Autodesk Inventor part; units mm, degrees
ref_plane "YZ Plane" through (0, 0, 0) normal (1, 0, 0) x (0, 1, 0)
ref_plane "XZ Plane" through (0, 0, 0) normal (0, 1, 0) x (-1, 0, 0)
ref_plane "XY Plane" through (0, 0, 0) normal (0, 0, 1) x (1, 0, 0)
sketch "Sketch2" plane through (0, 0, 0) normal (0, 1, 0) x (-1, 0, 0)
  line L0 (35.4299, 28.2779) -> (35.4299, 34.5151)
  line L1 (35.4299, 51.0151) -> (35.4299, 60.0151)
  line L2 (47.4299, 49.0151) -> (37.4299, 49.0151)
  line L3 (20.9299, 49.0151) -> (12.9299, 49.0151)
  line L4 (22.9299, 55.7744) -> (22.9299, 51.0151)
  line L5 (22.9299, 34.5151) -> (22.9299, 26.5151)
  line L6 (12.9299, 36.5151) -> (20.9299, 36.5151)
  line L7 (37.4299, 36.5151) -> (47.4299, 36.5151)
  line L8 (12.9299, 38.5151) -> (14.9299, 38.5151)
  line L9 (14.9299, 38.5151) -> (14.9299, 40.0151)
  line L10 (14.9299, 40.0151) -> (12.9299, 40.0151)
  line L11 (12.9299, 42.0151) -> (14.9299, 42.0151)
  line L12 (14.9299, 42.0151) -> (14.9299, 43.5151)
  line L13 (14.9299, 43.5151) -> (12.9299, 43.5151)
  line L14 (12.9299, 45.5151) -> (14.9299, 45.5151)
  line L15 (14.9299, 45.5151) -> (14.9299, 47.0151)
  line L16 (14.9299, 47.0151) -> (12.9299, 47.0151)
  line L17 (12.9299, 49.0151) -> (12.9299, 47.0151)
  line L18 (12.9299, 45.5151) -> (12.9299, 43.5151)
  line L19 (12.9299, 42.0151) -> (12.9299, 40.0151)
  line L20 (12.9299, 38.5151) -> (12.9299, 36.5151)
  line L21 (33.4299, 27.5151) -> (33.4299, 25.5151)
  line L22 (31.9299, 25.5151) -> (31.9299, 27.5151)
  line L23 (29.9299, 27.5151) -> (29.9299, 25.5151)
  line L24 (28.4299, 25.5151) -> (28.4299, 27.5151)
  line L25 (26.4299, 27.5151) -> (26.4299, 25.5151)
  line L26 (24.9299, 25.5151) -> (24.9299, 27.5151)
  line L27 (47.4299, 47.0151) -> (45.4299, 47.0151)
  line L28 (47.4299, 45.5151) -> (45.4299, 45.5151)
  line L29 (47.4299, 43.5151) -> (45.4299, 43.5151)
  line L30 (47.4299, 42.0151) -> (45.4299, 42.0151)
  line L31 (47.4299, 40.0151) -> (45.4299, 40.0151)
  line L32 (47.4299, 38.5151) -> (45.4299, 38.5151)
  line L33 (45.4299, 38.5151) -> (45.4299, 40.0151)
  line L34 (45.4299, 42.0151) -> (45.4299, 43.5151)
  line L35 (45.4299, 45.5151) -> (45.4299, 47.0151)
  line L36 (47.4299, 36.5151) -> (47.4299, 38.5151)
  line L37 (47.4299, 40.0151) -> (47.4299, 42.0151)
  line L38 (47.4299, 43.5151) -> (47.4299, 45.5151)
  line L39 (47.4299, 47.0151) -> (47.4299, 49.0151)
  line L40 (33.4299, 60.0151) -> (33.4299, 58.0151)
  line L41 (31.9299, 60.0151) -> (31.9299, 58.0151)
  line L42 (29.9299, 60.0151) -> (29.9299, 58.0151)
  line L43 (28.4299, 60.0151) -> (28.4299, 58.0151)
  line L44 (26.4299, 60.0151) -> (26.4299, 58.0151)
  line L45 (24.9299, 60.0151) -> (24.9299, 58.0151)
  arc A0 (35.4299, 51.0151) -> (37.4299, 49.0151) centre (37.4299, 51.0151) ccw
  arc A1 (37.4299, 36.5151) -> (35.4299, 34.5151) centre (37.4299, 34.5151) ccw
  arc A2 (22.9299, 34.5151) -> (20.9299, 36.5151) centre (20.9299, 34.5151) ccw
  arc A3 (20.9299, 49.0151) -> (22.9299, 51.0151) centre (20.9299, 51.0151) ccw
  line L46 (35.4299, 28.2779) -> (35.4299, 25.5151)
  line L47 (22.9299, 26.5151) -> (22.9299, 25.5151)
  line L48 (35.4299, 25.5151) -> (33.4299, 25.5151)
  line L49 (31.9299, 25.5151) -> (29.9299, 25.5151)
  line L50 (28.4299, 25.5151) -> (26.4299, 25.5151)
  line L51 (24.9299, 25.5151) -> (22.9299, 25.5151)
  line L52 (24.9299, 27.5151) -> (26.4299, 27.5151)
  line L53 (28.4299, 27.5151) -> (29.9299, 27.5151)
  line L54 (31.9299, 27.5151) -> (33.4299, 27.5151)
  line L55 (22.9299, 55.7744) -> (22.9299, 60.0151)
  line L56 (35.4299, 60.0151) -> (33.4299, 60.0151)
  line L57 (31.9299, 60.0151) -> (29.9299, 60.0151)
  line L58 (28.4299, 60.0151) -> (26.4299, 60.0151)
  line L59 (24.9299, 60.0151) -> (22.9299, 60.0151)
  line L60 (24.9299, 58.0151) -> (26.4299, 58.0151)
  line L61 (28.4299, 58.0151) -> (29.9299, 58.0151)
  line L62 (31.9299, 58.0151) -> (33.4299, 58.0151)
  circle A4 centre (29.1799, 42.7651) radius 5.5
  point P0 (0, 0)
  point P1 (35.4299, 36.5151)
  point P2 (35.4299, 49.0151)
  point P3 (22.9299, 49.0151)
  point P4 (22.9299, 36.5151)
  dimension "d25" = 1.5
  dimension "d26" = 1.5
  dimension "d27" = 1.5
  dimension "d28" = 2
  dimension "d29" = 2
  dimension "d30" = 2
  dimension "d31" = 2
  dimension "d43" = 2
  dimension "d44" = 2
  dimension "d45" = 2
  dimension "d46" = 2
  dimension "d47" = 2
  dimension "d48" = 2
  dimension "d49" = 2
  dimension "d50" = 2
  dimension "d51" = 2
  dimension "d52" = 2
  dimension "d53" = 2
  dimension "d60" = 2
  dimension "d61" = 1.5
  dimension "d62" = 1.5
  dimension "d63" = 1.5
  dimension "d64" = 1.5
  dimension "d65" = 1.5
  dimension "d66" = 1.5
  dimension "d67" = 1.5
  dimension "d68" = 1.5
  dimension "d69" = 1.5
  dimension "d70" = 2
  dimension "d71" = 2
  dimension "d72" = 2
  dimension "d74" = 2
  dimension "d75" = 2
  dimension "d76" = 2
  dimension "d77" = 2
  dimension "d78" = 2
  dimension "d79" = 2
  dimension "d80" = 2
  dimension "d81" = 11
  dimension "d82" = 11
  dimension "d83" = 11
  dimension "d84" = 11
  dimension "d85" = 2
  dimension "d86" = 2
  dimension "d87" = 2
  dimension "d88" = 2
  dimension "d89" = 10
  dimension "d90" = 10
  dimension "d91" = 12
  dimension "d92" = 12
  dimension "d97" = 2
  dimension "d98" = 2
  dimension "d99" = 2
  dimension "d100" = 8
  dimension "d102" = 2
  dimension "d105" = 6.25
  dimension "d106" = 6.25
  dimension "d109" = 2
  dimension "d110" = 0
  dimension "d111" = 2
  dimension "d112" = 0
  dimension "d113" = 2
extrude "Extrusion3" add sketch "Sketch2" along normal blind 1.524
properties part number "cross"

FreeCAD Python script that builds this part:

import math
import FreeCAD as App
import Part
import Sketcher
from FreeCAD import Vector

doc = App.newDocument("Part")
body = doc.addObject("PartDesign::Body", "Body")

# Sketch on XZ plane
sketch1 = body.newObject("Sketcher::SketchObject", "Sketch")
sketch1.AttachmentSupport = (doc.getObject("XZ_Plane"), [""])
sketch1.MapMode = "FlatFace"
sketch1.addGeometry(Part.LineSegment(Vector(-35.4299, 25.5151, 0), Vector(-35.4299, 34.5151, 0)), False)
sketch1.addGeometry(Part.ArcOfCircle(Part.Circle(Vector(-37.4299, 34.5151, 0), Vector(0, 0, 1), 2), math.radians(0), math.radians(90)), False)
sketch1.addGeometry(Part.LineSegment(Vector(-37.4299, 36.5151, 0), Vector(-47.4299, 36.5151, 0)), False)
sketch1.addGeometry(Part.LineSegment(Vector(-47.4299, 36.5151, 0), Vector(-47.4299, 38.5151, 0)), False)
sketch1.addGeometry(Part.LineSegment(Vector(-47.4299, 38.5151, 0), Vector(-45.4299, 38.5151, 0)), False)
sketch1.addGeometry(Part.LineSegment(Vector(-45.4299, 38.5151, 0), Vector(-45.4299, 40.0151, 0)), False)
sketch1.addGeometry(Part.LineSegment(Vector(-45.4299, 40.0151, 0), Vector(-47.4299, 40.0151, 0)), False)
sketch1.addGeometry(Part.LineSegment(Vector(-47.4299, 40.0151, 0), Vector(-47.4299, 42.0151, 0)), False)
sketch1.addGeometry(Part.LineSegment(Vector(-47.4299, 42.0151, 0), Vector(-45.4299, 42.0151, 0)), False)
sketch1.addGeometry(Part.LineSegment(Vector(-45.4299, 42.0151, 0), Vector(-45.4299, 43.5151, 0)), False)
sketch1.addGeometry(Part.LineSegment(Vector(-45.4299, 43.5151, 0), Vector(-47.4299, 43.5151, 0)), False)
sketch1.addGeometry(Part.LineSegment(Vector(-47.4299, 43.5151, 0), Vector(-47.4299, 45.5151, 0)), False)
sketch1.addGeometry(Part.LineSegment(Vector(-47.4299, 45.5151, 0), Vector(-45.4299, 45.5151, 0)), False)
sketch1.addGeometry(Part.LineSegment(Vector(-45.4299, 45.5151, 0), Vector(-45.4299, 47.0151, 0)), False)
sketch1.addGeometry(Part.LineSegment(Vector(-45.4299, 47.0151, 0), Vector(-47.4299, 47.0151, 0)), False)
sketch1.addGeometry(Part.LineSegment(Vector(-47.4299, 47.0151, 0), Vector(-47.4299, 49.0151, 0)), False)
sketch1.addGeometry(Part.LineSegment(Vector(-47.4299, 49.0151, 0), Vector(-37.4299, 49.0151, 0)), False)
sketch1.addGeometry(Part.ArcOfCircle(Part.Circle(Vector(-37.4299, 51.0151, 0), Vector(0, 0, 1), 2), math.radians(-90), math.radians(0)), False)
sketch1.addGeometry(Part.LineSegment(Vector(-35.4299, 51.0151, 0), Vector(-35.4299, 60.0151, 0)), False)
sketch1.addGeometry(Part.LineSegment(Vector(-35.4299, 60.0151, 0), Vector(-33.4299, 60.0151, 0)), False)
sketch1.addGeometry(Part.LineSegment(Vector(-33.4299, 60.0151, 0), Vector(-33.4299, 58.0151, 0)), False)
sketch1.addGeometry(Part.LineSegment(Vector(-33.4299, 58.0151, 0), Vector(-31.9299, 58.0151, 0)), False)
sketch1.addGeometry(Part.LineSegment(Vector(-31.9299, 58.0151, 0), Vector(-31.9299, 60.0151, 0)), False)
sketch1.addGeometry(Part.LineSegment(Vector(-31.9299, 60.0151, 0), Vector(-29.9299, 60.0151, 0)), False)
sketch1.addGeometry(Part.LineSegment(Vector(-29.9299, 60.0151, 0), Vector(-29.9299, 58.0151, 0)), False)
sketch1.addGeometry(Part.LineSegment(Vector(-29.9299, 58.0151, 0), Vector(-28.4299, 58.0151, 0)), False)
sketch1.addGeometry(Part.LineSegment(Vector(-28.4299, 58.0151, 0), Vector(-28.4299, 60.0151, 0)), False)
sketch1.addGeometry(Part.LineSegment(Vector(-28.4299, 60.0151, 0), Vector(-26.4299, 60.0151, 0)), False)
sketch1.addGeometry(Part.LineSegment(Vector(-26.4299, 60.0151, 0), Vector(-26.4299, 58.0151, 0)), False)
sketch1.addGeometry(Part.LineSegment(Vector(-26.4299, 58.0151, 0), Vector(-24.9299, 58.0151, 0)), False)
sketch1.addGeometry(Part.LineSegment(Vector(-24.9299, 58.0151, 0), Vector(-24.9299, 60.0151, 0)), False)
sketch1.addGeometry(Part.LineSegment(Vector(-24.9299, 60.0151, 0), Vector(-22.9299, 60.0151, 0)), False)
sketch1.addGeometry(Part.LineSegment(Vector(-22.9299, 60.0151, 0), Vector(-22.9299, 51.0151, 0)), False)
sketch1.addGeometry(Part.ArcOfCircle(Part.Circle(Vector(-20.9299, 51.0151, 0), Vector(0, 0, 1), 2), math.radians(180), math.radians(270)), False)
sketch1.addGeometry(Part.LineSegment(Vector(-20.9299, 49.0151, 0), Vector(-12.9299, 49.0151, 0)), False)
sketch1.addGeometry(Part.LineSegment(Vector(-12.9299, 49.0151, 0), Vector(-12.9299, 47.0151, 0)), False)
sketch1.addGeometry(Part.LineSegment(Vector(-12.9299, 47.0151, 0), Vector(-14.9299, 47.0151, 0)), False)
sketch1.addGeometry(Part.LineSegment(Vector(-14.9299, 47.0151, 0), Vector(-14.9299, 45.5151, 0)), False)
sketch1.addGeometry(Part.LineSegment(Vector(-14.9299, 45.5151, 0), Vector(-12.9299, 45.5151, 0)), False)
sketch1.addGeometry(Part.LineSegment(Vector(-12.9299, 45.5151, 0), Vector(-12.9299, 43.5151, 0)), False)
sketch1.addGeometry(Part.LineSegment(Vector(-12.9299, 43.5151, 0), Vector(-14.9299, 43.5151, 0)), False)
sketch1.addGeometry(Part.LineSegment(Vector(-14.9299, 43.5151, 0), Vector(-14.9299, 42.0151, 0)), False)
sketch1.addGeometry(Part.LineSegment(Vector(-14.9299, 42.0151, 0), Vector(-12.9299, 42.0151, 0)), False)
sketch1.addGeometry(Part.LineSegment(Vector(-12.9299, 42.0151, 0), Vector(-12.9299, 40.0151, 0)), False)
sketch1.addGeometry(Part.LineSegment(Vector(-12.9299, 40.0151, 0), Vector(-14.9299, 40.0151, 0)), False)
sketch1.addGeometry(Part.LineSegment(Vector(-14.9299, 40.0151, 0), Vector(-14.9299, 38.5151, 0)), False)
sketch1.addGeometry(Part.LineSegment(Vector(-14.9299, 38.5151, 0), Vector(-12.9299, 38.5151, 0)), False)
sketch1.addGeometry(Part.LineSegment(Vector(-12.9299, 38.5151, 0), Vector(-12.9299, 36.5151, 0)), False)
sketch1.addGeometry(Part.LineSegment(Vector(-12.9299, 36.5151, 0), Vector(-20.9299, 36.5151, 0)), False)
sketch1.addGeometry(Part.ArcOfCircle(Part.Circle(Vector(-20.9299, 34.5151, 0), Vector(0, 0, 1), 2), math.radians(90), math.radians(180)), False)
sketch1.addGeometry(Part.LineSegment(Vector(-22.9299, 34.5151, 0), Vector(-22.9299, 25.5151, 0)), False)
sketch1.addGeometry(Part.LineSegment(Vector(-22.9299, 25.5151, 0), Vector(-24.9299, 25.5151, 0)), False)
sketch1.addGeometry(Part.LineSegment(Vector(-24.9299, 25.5151, 0), Vector(-24.9299, 27.5151, 0)), False)
sketch1.addGeometry(Part.LineSegment(Vector(-24.9299, 27.5151, 0), Vector(-26.4299, 27.5151, 0)), False)
sketch1.addGeometry(Part.LineSegment(Vector(-26.4299, 27.5151, 0), Vector(-26.4299, 25.5151, 0)), False)
sketch1.addGeometry(Part.LineSegment(Vector(-26.4299, 25.5151, 0), Vector(-28.4299, 25.5151, 0)), False)
sketch1.addGeometry(Part.LineSegment(Vector(-28.4299, 25.5151, 0), Vector(-28.4299, 27.5151, 0)), False)
sketch1.addGeometry(Part.LineSegment(Vector(-28.4299, 27.5151, 0), Vector(-29.9299, 27.5151, 0)), False)
sketch1.addGeometry(Part.LineSegment(Vector(-29.9299, 27.5151, 0), Vector(-29.9299, 25.5151, 0)), False)
sketch1.addGeometry(Part.LineSegment(Vector(-29.9299, 25.5151, 0), Vector(-31.9299, 25.5151, 0)), False)
sketch1.addGeometry(Part.LineSegment(Vector(-31.9299, 25.5151, 0), Vector(-31.9299, 27.5151, 0)), False)
sketch1.addGeometry(Part.LineSegment(Vector(-31.9299, 27.5151, 0), Vector(-33.4299, 27.5151, 0)), False)
sketch1.addGeometry(Part.LineSegment(Vector(-33.4299, 27.5151, 0), Vector(-33.4299, 25.5151, 0)), False)
sketch1.addGeometry(Part.LineSegment(Vector(-33.4299, 25.5151, 0), Vector(-35.4299, 25.5151, 0)), False)
sketch1.addGeometry(Part.Circle(Vector(-29.1799, 42.7651, 0), Vector(0, 0, 1), 5.5), False)
sketch1.addConstraint(Sketcher.Constraint("Tangent", 0, 2, 1, 1))
sketch1.addConstraint(Sketcher.Constraint("Tangent", 1, 2, 2, 1))
sketch1.addConstraint(Sketcher.Constraint("Coincident", 2, 2, 3, 1))
sketch1.addConstraint(Sketcher.Constraint("Coincident", 3, 2, 4, 1))
sketch1.addConstraint(Sketcher.Constraint("Coincident", 4, 2, 5, 1))
sketch1.addConstraint(Sketcher.Constraint("Coincident", 5, 2, 6, 1))
sketch1.addConstraint(Sketcher.Constraint("Coincident", 6, 2, 7, 1))
sketch1.addConstraint(Sketcher.Constraint("Coincident", 7, 2, 8, 1))
sketch1.addConstraint(Sketcher.Constraint("Coincident", 8, 2, 9, 1))
sketch1.addConstraint(Sketcher.Constraint("Coincident", 9, 2, 10, 1))
sketch1.addConstraint(Sketcher.Constraint("Coincident", 10, 2, 11, 1))
sketch1.addConstraint(Sketcher.Constraint("Coincident", 11, 2, 12, 1))
sketch1.addConstraint(Sketcher.Constraint("Coincident", 12, 2, 13, 1))
sketch1.addConstraint(Sketcher.Constraint("Coincident", 13, 2, 14, 1))
sketch1.addConstraint(Sketcher.Constraint("Coincident", 14, 2, 15, 1))
sketch1.addConstraint(Sketcher.Constraint("Coincident", 15, 2, 16, 1))
sketch1.addConstraint(Sketcher.Constraint("Tangent", 16, 2, 17, 1))
sketch1.addConstraint(Sketcher.Constraint("Tangent", 17, 2, 18, 1))
sketch1.addConstraint(Sketcher.Constraint("Coincident", 18, 2, 19, 1))
sketch1.addConstraint(Sketcher.Constraint("Coincident", 19, 2, 20, 1))
sketch1.addConstraint(Sketcher.Constraint("Coincident", 20, 2, 21, 1))
sketch1.addConstraint(Sketcher.Constraint("Coincident", 21, 2, 22, 1))
sketch1.addConstraint(Sketcher.Constraint("Coincident", 22, 2, 23, 1))
sketch1.addConstraint(Sketcher.Constraint("Coincident", 23, 2, 24, 1))
sketch1.addConstraint(Sketcher.Constraint("Coincident", 24, 2, 25, 1))
sketch1.addConstraint(Sketcher.Constraint("Coincident", 25, 2, 26, 1))
sketch1.addConstraint(Sketcher.Constraint("Coincident", 26, 2, 27, 1))
sketch1.addConstraint(Sketcher.Constraint("Coincident", 27, 2, 28, 1))
sketch1.addConstraint(Sketcher.Constraint("Coincident", 28, 2, 29, 1))
sketch1.addConstraint(Sketcher.Constraint("Coincident", 29, 2, 30, 1))
sketch1.addConstraint(Sketcher.Constraint("Coincident", 30, 2, 31, 1))
sketch1.addConstraint(Sketcher.Constraint("Coincident", 31, 2, 32, 1))
sketch1.addConstraint(Sketcher.Constraint("Tangent", 32, 2, 33, 1))
sketch1.addConstraint(Sketcher.Constraint("Tangent", 33, 2, 34, 1))
sketch1.addConstraint(Sketcher.Constraint("Coincident", 34, 2, 35, 1))
sketch1.addConstraint(Sketcher.Constraint("Coincident", 35, 2, 36, 1))
sketch1.addConstraint(Sketcher.Constraint("Coincident", 36, 2, 37, 1))
sketch1.addConstraint(Sketcher.Constraint("Coincident", 37, 2, 38, 1))
sketch1.addConstraint(Sketcher.Constraint("Coincident", 38, 2, 39, 1))
sketch1.addConstraint(Sketcher.Constraint("Coincident", 39, 2, 40, 1))
sketch1.addConstraint(Sketcher.Constraint("Coincident", 40, 2, 41, 1))
sketch1.addConstraint(Sketcher.Constraint("Coincident", 41, 2, 42, 1))
sketch1.addConstraint(Sketcher.Constraint("Coincident", 42, 2, 43, 1))
sketch1.addConstraint(Sketcher.Constraint("Coincident", 43, 2, 44, 1))
sketch1.addConstraint(Sketcher.Constraint("Coincident", 44, 2, 45, 1))
sketch1.addConstraint(Sketcher.Constraint("Coincident", 45, 2, 46, 1))
sketch1.addConstraint(Sketcher.Constraint("Coincident", 46, 2, 47, 1))
sketch1.addConstraint(Sketcher.Constraint("Coincident", 47, 2, 48, 1))
sketch1.addConstraint(Sketcher.Constraint("Tangent", 48, 2, 49, 1))
sketch1.addConstraint(Sketcher.Constraint("Tangent", 49, 2, 50, 1))
sketch1.addConstraint(Sketcher.Constraint("Coincident", 50, 2, 51, 1))
sketch1.addConstraint(Sketcher.Constraint("Coincident", 51, 2, 52, 1))
sketch1.addConstraint(Sketcher.Constraint("Coincident", 52, 2, 53, 1))
sketch1.addConstraint(Sketcher.Constraint("Coincident", 53, 2, 54, 1))
sketch1.addConstraint(Sketcher.Constraint("Coincident", 54, 2, 55, 1))
sketch1.addConstraint(Sketcher.Constraint("Coincident", 55, 2, 56, 1))
sketch1.addConstraint(Sketcher.Constraint("Coincident", 56, 2, 57, 1))
sketch1.addConstraint(Sketcher.Constraint("Coincident", 57, 2, 58, 1))
sketch1.addConstraint(Sketcher.Constraint("Coincident", 58, 2, 59, 1))
sketch1.addConstraint(Sketcher.Constraint("Coincident", 59, 2, 60, 1))
sketch1.addConstraint(Sketcher.Constraint("Coincident", 60, 2, 61, 1))
sketch1.addConstraint(Sketcher.Constraint("Coincident", 61, 2, 62, 1))
sketch1.addConstraint(Sketcher.Constraint("Coincident", 62, 2, 63, 1))
sketch1.addConstraint(Sketcher.Constraint("Coincident", 63, 2, 0, 1))
sketch1.addConstraint(Sketcher.Constraint("Vertical", 0))
sketch1.addConstraint(Sketcher.Constraint("Horizontal", 2))
sketch1.addConstraint(Sketcher.Constraint("Vertical", 3))
sketch1.addConstraint(Sketcher.Constraint("Horizontal", 4))
sketch1.addConstraint(Sketcher.Constraint("Vertical", 5))
sketch1.addConstraint(Sketcher.Constraint("Horizontal", 6))
sketch1.addConstraint(Sketcher.Constraint("Vertical", 7))
sketch1.addConstraint(Sketcher.Constraint("Horizontal", 8))
sketch1.addConstraint(Sketcher.Constraint("Vertical", 9))
sketch1.addConstraint(Sketcher.Constraint("Horizontal", 10))
sketch1.addConstraint(Sketcher.Constraint("Vertical", 11))
sketch1.addConstraint(Sketcher.Constraint("Horizontal", 12))
sketch1.addConstraint(Sketcher.Constraint("Vertical", 13))
sketch1.addConstraint(Sketcher.Constraint("Horizontal", 14))
sketch1.addConstraint(Sketcher.Constraint("Vertical", 15))
sketch1.addConstraint(Sketcher.Constraint("Horizontal", 16))
sketch1.addConstraint(Sketcher.Constraint("Vertical", 18))
sketch1.addConstraint(Sketcher.Constraint("Horizontal", 19))
sketch1.addConstraint(Sketcher.Constraint("Vertical", 20))
sketch1.addConstraint(Sketcher.Constraint("Horizontal", 21))
sketch1.addConstraint(Sketcher.Constraint("Vertical", 22))
sketch1.addConstraint(Sketcher.Constraint("Horizontal", 23))
sketch1.addConstraint(Sketcher.Constraint("Vertical", 24))
sketch1.addConstraint(Sketcher.Constraint("Horizontal", 25))
sketch1.addConstraint(Sketcher.Constraint("Vertical", 26))
sketch1.addConstraint(Sketcher.Constraint("Horizontal", 27))
sketch1.addConstraint(Sketcher.Constraint("Vertical", 28))
sketch1.addConstraint(Sketcher.Constraint("Horizontal", 29))
sketch1.addConstraint(Sketcher.Constraint("Vertical", 30))
sketch1.addConstraint(Sketcher.Constraint("Horizontal", 31))
sketch1.addConstraint(Sketcher.Constraint("Vertical", 32))
sketch1.addConstraint(Sketcher.Constraint("Horizontal", 34))
sketch1.addConstraint(Sketcher.Constraint("Vertical", 35))
sketch1.addConstraint(Sketcher.Constraint("Horizontal", 36))
sketch1.addConstraint(Sketcher.Constraint("Vertical", 37))
sketch1.addConstraint(Sketcher.Constraint("Horizontal", 38))
sketch1.addConstraint(Sketcher.Constraint("Vertical", 39))
sketch1.addConstraint(Sketcher.Constraint("Horizontal", 40))
sketch1.addConstraint(Sketcher.Constraint("Vertical", 41))
sketch1.addConstraint(Sketcher.Constraint("Horizontal", 42))
sketch1.addConstraint(Sketcher.Constraint("Vertical", 43))
sketch1.addConstraint(Sketcher.Constraint("Horizontal", 44))
sketch1.addConstraint(Sketcher.Constraint("Vertical", 45))
sketch1.addConstraint(Sketcher.Constraint("Horizontal", 46))
sketch1.addConstraint(Sketcher.Constraint("Vertical", 47))
sketch1.addConstraint(Sketcher.Constraint("Horizontal", 48))
sketch1.addConstraint(Sketcher.Constraint("Vertical", 50))
sketch1.addConstraint(Sketcher.Constraint("Horizontal", 51))
sketch1.addConstraint(Sketcher.Constraint("Vertical", 52))
sketch1.addConstraint(Sketcher.Constraint("Horizontal", 53))
sketch1.addConstraint(Sketcher.Constraint("Vertical", 54))
sketch1.addConstraint(Sketcher.Constraint("Horizontal", 55))
sketch1.addConstraint(Sketcher.Constraint("Vertical", 56))
sketch1.addConstraint(Sketcher.Constraint("Horizontal", 57))
sketch1.addConstraint(Sketcher.Constraint("Vertical", 58))
sketch1.addConstraint(Sketcher.Constraint("Horizontal", 59))
sketch1.addConstraint(Sketcher.Constraint("Vertical", 60))
sketch1.addConstraint(Sketcher.Constraint("Horizontal", 61))
sketch1.addConstraint(Sketcher.Constraint("Vertical", 62))
sketch1.addConstraint(Sketcher.Constraint("Horizontal", 63))
sketch1.addConstraint(Sketcher.Constraint("Equal", 1, 17))
sketch1.addConstraint(Sketcher.Constraint("Equal", 17, 33))
sketch1.addConstraint(Sketcher.Constraint("Equal", 33, 49))
sketch1.addConstraint(Sketcher.Constraint("Horizontal", 17, 3, 33, 3))
sketch1.addConstraint(Sketcher.Constraint("Horizontal", 1, 3, 49, 3))
sketch1.addConstraint(Sketcher.Constraint("Horizontal", 19, 2, 22, 2))
sketch1.addConstraint(Sketcher.Constraint("Horizontal", 21, 2, 24, 2))
sketch1.addConstraint(Sketcher.Constraint("Horizontal", 23, 2, 26, 2))
sketch1.addConstraint(Sketcher.Constraint("Horizontal", 25, 2, 28, 2))
sketch1.addConstraint(Sketcher.Constraint("Horizontal", 27, 2, 30, 2))
sketch1.addConstraint(Sketcher.Constraint("Horizontal", 14, 2, 35, 2))
sketch1.addConstraint(Sketcher.Constraint("Horizontal", 12, 2, 37, 2))
sketch1.addConstraint(Sketcher.Constraint("Horizontal", 10, 2, 39, 2))
sketch1.addConstraint(Sketcher.Constraint("Horizontal", 8, 2, 41, 2))
sketch1.addConstraint(Sketcher.Constraint("Horizontal", 6, 2, 43, 2))
sketch1.addConstraint(Sketcher.Constraint("Horizontal", 4, 2, 45, 2))
sketch1.addConstraint(Sketcher.Constraint("Horizontal", 51, 2, 54, 2))
sketch1.addConstraint(Sketcher.Constraint("Horizontal", 53, 2, 56, 2))
sketch1.addConstraint(Sketcher.Constraint("Horizontal", 55, 2, 58, 2))
sketch1.addConstraint(Sketcher.Constraint("Horizontal", 57, 2, 60, 2))
sketch1.addConstraint(Sketcher.Constraint("Horizontal", 59, 2, 62, 2))
sketch1.addConstraint(Sketcher.Constraint("Vertical", 1, 3, 17, 3))
sketch1.addConstraint(Sketcher.Constraint("Vertical", 33, 3, 49, 3))
sketch1.addConstraint(Sketcher.Constraint("Vertical", 3, 2, 6, 2))
sketch1.addConstraint(Sketcher.Constraint("Vertical", 5, 2, 8, 2))
sketch1.addConstraint(Sketcher.Constraint("Vertical", 7, 2, 10, 2))
sketch1.addConstraint(Sketcher.Constraint("Vertical", 9, 2, 12, 2))
sketch1.addConstraint(Sketcher.Constraint("Vertical", 11, 2, 14, 2))
sketch1.addConstraint(Sketcher.Constraint("Vertical", 35, 2, 38, 2))
sketch1.addConstraint(Sketcher.Constraint("Vertical", 37, 2, 40, 2))
sketch1.addConstraint(Sketcher.Constraint("Vertical", 39, 2, 42, 2))
sketch1.addConstraint(Sketcher.Constraint("Vertical", 41, 2, 44, 2))
sketch1.addConstraint(Sketcher.Constraint("Vertical", 43, 2, 46, 2))
sketch1.addConstraint(Sketcher.Constraint("Vertical", 30, 2, 51, 2))
sketch1.addConstraint(Sketcher.Constraint("Vertical", 28, 2, 53, 2))
sketch1.addConstraint(Sketcher.Constraint("Vertical", 26, 2, 55, 2))
sketch1.addConstraint(Sketcher.Constraint("Vertical", 24, 2, 57, 2))
sketch1.addConstraint(Sketcher.Constraint("Vertical", 22, 2, 59, 2))
sketch1.addConstraint(Sketcher.Constraint("Vertical", 20, 2, 61, 2))
sketch1.addConstraint(Sketcher.Constraint("Equal", 14, 19))
sketch1.addConstraint(Sketcher.Constraint("Equal", 19, 23))
sketch1.addConstraint(Sketcher.Constraint("Equal", 21, 25))
sketch1.addConstraint(Sketcher.Constraint("Equal", 23, 27))
sketch1.addConstraint(Sketcher.Constraint("Equal", 25, 29))
sketch1.addConstraint(Sketcher.Constraint("Equal", 27, 31))
sketch1.addConstraint(Sketcher.Constraint("Equal", 31, 36))
sketch1.addConstraint(Sketcher.Constraint("Equal", 63, 3))
sketch1.addConstraint(Sketcher.Constraint("Equal", 61, 5))
sketch1.addConstraint(Sketcher.Constraint("Equal", 3, 7))
sketch1.addConstraint(Sketcher.Constraint("Equal", 5, 9))
sketch1.addConstraint(Sketcher.Constraint("Equal", 7, 11))
sketch1.addConstraint(Sketcher.Constraint("Equal", 9, 13))
sketch1.addConstraint(Sketcher.Constraint("Equal", 11, 15))
sketch1.addConstraint(Sketcher.Constraint("Equal", 0, 18))
sketch1.addConstraint(Sketcher.Constraint("Equal", 15, 20))
sketch1.addConstraint(Sketcher.Constraint("Equal", 47, 52))
sketch1.addConstraint(Sketcher.Constraint("Diameter", 64, 11.0))
sketch1.addConstraint(Sketcher.Constraint("Radius", 1, 2.0))
sketch1.addConstraint(Sketcher.Constraint("DistanceX", 2, 2, 2, 1, 10.0))
sketch1.addConstraint(Sketcher.Constraint("DistanceX", 4, 1, 4, 2, 2.0))
sketch1.addConstraint(Sketcher.Constraint("DistanceX", 34, 1, 34, 2, 8.0))
sketch1.addConstraint(Sketcher.Constraint("DistanceX", 21, 1, 21, 2, 1.5))
sketch1.addConstraint(Sketcher.Constraint("DistanceY", 0, 1, 0, 2, 9.0))
sketch1.addConstraint(Sketcher.Constraint("DistanceX", 1, 3, -1, 1, 37.43))
sketch1.addConstraint(Sketcher.Constraint("DistanceX", 64, 3, -1, 1, 29.18))
sketch1.addConstraint(Sketcher.Constraint("DistanceY", -1, 1, 1, 3, 34.515))
sketch1.addConstraint(Sketcher.Constraint("DistanceY", -1, 1, 64, 3, 42.765))
pad1 = body.newObject("PartDesign::Pad", "Pad")
pad1.Profile = sketch1
pad1.Length = 1.524
pad1.Reversed = True

doc.recompute()
